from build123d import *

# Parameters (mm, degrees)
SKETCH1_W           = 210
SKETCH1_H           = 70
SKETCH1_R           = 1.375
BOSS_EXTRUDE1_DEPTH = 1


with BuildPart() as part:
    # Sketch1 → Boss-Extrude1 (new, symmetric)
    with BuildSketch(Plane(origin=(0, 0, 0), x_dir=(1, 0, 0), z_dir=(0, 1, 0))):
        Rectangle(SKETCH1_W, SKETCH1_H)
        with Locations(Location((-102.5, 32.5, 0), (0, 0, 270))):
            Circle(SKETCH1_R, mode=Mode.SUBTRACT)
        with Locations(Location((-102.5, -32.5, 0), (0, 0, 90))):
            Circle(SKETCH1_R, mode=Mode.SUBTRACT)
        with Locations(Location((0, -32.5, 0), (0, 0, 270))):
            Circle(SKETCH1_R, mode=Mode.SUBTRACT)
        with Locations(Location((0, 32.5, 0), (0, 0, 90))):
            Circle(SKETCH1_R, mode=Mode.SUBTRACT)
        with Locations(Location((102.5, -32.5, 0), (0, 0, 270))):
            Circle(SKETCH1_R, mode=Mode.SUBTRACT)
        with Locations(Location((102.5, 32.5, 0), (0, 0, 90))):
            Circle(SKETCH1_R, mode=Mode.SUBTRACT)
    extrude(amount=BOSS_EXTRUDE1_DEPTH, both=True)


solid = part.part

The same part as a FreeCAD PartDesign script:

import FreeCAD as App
import Part
import Sketcher

V = App.Vector

doc = App.newDocument("Part")
params = doc.addObject("Spreadsheet::Sheet", "Params")
for row, (alias, value) in enumerate([
    ("sketch1_diameter", "2.75 mm"),
    ("sketch1_width", "210 mm"),
    ("sketch1_height", "70 mm"),
    ("pad1_length", "2 mm"),
], start=1):
    params.set(f"A{row}", alias)
    params.set(f"B{row}", "=" + value)
    params.setAlias(f"B{row}", alias)

body = doc.addObject("PartDesign::Body", "Body")

# Sketch on XZ plane
sketch1 = body.newObject("Sketcher::SketchObject", "Sketch")
sketch1.AttachmentSupport = (doc.getObject("XZ_Plane"), [""])
sketch1.MapMode = "FlatFace"
sketch1.addGeometry([
    Part.LineSegment(V(-105, -35, 0), V(-105, 35, 0)),  # 0
    Part.LineSegment(V(-105, 35, 0), V(105, 35, 0)),  # 1
    Part.LineSegment(V(105, 35, 0), V(105, -35, 0)),  # 2
    Part.LineSegment(V(105, -35, 0), V(-105, -35, 0)),  # 3
    Part.Circle(V(-102.5, 32.5, 0), V(0, 0, 1), 1.4),  # 4
    Part.Circle(V(0, 32.5, 0), V(0, 0, 1), 1.4),  # 5
    Part.Circle(V(102.5, 32.5, 0), V(0, 0, 1), 1.4),  # 6
    Part.Circle(V(-102.5, -32.5, 0), V(0, 0, 1), 1.4),  # 7
    Part.Circle(V(0, -32.5, 0), V(0, 0, 1), 1.4),  # 8
    Part.Circle(V(102.5, -32.5, 0), V(0, 0, 1), 1.4),  # 9
], False)
sketch1.addConstraint([
    Sketcher.Constraint("Coincident", 0, 2, 1, 1),
    Sketcher.Constraint("Coincident", 1, 2, 2, 1),
    Sketcher.Constraint("Coincident", 2, 2, 3, 1),
    Sketcher.Constraint("Coincident", 3, 2, 0, 1),
    Sketcher.Constraint("Vertical", 0),
    Sketcher.Constraint("Horizontal", 1),
    Sketcher.Constraint("Vertical", 2),
    Sketcher.Constraint("Horizontal", 3),
    Sketcher.Constraint("Equal", 4, 5),
    Sketcher.Constraint("Equal", 5, 6),
    Sketcher.Constraint("Equal", 6, 7),
    Sketcher.Constraint("Equal", 7, 8),
    Sketcher.Constraint("Equal", 8, 9),
    Sketcher.Constraint("Symmetric", 6, 3, 7, 3, -1, 1),
    Sketcher.Constraint("Symmetric", 5, 3, 8, 3, -1, 1),
    Sketcher.Constraint("Symmetric", 4, 3, 9, 3, -1, 1),
    Sketcher.Constraint("Symmetric", 0, 2, 2, 2, -1, 1),
    Sketcher.Constraint("Symmetric", 4, 3, 6, 3, -2),
    Sketcher.Constraint("PointOnObject", 5, 3, -2),
    Sketcher.Constraint("Horizontal", 4, 3, 5, 3),
    Sketcher.Constraint("Diameter", 4, 2.75),
    Sketcher.Constraint("DistanceX", 1, 1, 1, 2, 210.0),
    Sketcher.Constraint("DistanceY", 0, 1, 0, 2, 70.0),
    Sketcher.Constraint("DistanceX", 4, 3, 6, 3, 205.0),
    Sketcher.Constraint("DistanceY", 7, 3, 4, 3, 65.0),
])
sketch1.setExpression("Constraints[20]", "Params.sketch1_diameter")
sketch1.setExpression("Constraints[21]", "Params.sketch1_width")
sketch1.setExpression("Constraints[22]", "Params.sketch1_height")
pad1 = body.newObject("PartDesign::Pad", "Pad")
pad1.Profile = sketch1
pad1.setExpression("Length", "Params.pad1_length")
pad1.Midplane = True

doc.recompute()
